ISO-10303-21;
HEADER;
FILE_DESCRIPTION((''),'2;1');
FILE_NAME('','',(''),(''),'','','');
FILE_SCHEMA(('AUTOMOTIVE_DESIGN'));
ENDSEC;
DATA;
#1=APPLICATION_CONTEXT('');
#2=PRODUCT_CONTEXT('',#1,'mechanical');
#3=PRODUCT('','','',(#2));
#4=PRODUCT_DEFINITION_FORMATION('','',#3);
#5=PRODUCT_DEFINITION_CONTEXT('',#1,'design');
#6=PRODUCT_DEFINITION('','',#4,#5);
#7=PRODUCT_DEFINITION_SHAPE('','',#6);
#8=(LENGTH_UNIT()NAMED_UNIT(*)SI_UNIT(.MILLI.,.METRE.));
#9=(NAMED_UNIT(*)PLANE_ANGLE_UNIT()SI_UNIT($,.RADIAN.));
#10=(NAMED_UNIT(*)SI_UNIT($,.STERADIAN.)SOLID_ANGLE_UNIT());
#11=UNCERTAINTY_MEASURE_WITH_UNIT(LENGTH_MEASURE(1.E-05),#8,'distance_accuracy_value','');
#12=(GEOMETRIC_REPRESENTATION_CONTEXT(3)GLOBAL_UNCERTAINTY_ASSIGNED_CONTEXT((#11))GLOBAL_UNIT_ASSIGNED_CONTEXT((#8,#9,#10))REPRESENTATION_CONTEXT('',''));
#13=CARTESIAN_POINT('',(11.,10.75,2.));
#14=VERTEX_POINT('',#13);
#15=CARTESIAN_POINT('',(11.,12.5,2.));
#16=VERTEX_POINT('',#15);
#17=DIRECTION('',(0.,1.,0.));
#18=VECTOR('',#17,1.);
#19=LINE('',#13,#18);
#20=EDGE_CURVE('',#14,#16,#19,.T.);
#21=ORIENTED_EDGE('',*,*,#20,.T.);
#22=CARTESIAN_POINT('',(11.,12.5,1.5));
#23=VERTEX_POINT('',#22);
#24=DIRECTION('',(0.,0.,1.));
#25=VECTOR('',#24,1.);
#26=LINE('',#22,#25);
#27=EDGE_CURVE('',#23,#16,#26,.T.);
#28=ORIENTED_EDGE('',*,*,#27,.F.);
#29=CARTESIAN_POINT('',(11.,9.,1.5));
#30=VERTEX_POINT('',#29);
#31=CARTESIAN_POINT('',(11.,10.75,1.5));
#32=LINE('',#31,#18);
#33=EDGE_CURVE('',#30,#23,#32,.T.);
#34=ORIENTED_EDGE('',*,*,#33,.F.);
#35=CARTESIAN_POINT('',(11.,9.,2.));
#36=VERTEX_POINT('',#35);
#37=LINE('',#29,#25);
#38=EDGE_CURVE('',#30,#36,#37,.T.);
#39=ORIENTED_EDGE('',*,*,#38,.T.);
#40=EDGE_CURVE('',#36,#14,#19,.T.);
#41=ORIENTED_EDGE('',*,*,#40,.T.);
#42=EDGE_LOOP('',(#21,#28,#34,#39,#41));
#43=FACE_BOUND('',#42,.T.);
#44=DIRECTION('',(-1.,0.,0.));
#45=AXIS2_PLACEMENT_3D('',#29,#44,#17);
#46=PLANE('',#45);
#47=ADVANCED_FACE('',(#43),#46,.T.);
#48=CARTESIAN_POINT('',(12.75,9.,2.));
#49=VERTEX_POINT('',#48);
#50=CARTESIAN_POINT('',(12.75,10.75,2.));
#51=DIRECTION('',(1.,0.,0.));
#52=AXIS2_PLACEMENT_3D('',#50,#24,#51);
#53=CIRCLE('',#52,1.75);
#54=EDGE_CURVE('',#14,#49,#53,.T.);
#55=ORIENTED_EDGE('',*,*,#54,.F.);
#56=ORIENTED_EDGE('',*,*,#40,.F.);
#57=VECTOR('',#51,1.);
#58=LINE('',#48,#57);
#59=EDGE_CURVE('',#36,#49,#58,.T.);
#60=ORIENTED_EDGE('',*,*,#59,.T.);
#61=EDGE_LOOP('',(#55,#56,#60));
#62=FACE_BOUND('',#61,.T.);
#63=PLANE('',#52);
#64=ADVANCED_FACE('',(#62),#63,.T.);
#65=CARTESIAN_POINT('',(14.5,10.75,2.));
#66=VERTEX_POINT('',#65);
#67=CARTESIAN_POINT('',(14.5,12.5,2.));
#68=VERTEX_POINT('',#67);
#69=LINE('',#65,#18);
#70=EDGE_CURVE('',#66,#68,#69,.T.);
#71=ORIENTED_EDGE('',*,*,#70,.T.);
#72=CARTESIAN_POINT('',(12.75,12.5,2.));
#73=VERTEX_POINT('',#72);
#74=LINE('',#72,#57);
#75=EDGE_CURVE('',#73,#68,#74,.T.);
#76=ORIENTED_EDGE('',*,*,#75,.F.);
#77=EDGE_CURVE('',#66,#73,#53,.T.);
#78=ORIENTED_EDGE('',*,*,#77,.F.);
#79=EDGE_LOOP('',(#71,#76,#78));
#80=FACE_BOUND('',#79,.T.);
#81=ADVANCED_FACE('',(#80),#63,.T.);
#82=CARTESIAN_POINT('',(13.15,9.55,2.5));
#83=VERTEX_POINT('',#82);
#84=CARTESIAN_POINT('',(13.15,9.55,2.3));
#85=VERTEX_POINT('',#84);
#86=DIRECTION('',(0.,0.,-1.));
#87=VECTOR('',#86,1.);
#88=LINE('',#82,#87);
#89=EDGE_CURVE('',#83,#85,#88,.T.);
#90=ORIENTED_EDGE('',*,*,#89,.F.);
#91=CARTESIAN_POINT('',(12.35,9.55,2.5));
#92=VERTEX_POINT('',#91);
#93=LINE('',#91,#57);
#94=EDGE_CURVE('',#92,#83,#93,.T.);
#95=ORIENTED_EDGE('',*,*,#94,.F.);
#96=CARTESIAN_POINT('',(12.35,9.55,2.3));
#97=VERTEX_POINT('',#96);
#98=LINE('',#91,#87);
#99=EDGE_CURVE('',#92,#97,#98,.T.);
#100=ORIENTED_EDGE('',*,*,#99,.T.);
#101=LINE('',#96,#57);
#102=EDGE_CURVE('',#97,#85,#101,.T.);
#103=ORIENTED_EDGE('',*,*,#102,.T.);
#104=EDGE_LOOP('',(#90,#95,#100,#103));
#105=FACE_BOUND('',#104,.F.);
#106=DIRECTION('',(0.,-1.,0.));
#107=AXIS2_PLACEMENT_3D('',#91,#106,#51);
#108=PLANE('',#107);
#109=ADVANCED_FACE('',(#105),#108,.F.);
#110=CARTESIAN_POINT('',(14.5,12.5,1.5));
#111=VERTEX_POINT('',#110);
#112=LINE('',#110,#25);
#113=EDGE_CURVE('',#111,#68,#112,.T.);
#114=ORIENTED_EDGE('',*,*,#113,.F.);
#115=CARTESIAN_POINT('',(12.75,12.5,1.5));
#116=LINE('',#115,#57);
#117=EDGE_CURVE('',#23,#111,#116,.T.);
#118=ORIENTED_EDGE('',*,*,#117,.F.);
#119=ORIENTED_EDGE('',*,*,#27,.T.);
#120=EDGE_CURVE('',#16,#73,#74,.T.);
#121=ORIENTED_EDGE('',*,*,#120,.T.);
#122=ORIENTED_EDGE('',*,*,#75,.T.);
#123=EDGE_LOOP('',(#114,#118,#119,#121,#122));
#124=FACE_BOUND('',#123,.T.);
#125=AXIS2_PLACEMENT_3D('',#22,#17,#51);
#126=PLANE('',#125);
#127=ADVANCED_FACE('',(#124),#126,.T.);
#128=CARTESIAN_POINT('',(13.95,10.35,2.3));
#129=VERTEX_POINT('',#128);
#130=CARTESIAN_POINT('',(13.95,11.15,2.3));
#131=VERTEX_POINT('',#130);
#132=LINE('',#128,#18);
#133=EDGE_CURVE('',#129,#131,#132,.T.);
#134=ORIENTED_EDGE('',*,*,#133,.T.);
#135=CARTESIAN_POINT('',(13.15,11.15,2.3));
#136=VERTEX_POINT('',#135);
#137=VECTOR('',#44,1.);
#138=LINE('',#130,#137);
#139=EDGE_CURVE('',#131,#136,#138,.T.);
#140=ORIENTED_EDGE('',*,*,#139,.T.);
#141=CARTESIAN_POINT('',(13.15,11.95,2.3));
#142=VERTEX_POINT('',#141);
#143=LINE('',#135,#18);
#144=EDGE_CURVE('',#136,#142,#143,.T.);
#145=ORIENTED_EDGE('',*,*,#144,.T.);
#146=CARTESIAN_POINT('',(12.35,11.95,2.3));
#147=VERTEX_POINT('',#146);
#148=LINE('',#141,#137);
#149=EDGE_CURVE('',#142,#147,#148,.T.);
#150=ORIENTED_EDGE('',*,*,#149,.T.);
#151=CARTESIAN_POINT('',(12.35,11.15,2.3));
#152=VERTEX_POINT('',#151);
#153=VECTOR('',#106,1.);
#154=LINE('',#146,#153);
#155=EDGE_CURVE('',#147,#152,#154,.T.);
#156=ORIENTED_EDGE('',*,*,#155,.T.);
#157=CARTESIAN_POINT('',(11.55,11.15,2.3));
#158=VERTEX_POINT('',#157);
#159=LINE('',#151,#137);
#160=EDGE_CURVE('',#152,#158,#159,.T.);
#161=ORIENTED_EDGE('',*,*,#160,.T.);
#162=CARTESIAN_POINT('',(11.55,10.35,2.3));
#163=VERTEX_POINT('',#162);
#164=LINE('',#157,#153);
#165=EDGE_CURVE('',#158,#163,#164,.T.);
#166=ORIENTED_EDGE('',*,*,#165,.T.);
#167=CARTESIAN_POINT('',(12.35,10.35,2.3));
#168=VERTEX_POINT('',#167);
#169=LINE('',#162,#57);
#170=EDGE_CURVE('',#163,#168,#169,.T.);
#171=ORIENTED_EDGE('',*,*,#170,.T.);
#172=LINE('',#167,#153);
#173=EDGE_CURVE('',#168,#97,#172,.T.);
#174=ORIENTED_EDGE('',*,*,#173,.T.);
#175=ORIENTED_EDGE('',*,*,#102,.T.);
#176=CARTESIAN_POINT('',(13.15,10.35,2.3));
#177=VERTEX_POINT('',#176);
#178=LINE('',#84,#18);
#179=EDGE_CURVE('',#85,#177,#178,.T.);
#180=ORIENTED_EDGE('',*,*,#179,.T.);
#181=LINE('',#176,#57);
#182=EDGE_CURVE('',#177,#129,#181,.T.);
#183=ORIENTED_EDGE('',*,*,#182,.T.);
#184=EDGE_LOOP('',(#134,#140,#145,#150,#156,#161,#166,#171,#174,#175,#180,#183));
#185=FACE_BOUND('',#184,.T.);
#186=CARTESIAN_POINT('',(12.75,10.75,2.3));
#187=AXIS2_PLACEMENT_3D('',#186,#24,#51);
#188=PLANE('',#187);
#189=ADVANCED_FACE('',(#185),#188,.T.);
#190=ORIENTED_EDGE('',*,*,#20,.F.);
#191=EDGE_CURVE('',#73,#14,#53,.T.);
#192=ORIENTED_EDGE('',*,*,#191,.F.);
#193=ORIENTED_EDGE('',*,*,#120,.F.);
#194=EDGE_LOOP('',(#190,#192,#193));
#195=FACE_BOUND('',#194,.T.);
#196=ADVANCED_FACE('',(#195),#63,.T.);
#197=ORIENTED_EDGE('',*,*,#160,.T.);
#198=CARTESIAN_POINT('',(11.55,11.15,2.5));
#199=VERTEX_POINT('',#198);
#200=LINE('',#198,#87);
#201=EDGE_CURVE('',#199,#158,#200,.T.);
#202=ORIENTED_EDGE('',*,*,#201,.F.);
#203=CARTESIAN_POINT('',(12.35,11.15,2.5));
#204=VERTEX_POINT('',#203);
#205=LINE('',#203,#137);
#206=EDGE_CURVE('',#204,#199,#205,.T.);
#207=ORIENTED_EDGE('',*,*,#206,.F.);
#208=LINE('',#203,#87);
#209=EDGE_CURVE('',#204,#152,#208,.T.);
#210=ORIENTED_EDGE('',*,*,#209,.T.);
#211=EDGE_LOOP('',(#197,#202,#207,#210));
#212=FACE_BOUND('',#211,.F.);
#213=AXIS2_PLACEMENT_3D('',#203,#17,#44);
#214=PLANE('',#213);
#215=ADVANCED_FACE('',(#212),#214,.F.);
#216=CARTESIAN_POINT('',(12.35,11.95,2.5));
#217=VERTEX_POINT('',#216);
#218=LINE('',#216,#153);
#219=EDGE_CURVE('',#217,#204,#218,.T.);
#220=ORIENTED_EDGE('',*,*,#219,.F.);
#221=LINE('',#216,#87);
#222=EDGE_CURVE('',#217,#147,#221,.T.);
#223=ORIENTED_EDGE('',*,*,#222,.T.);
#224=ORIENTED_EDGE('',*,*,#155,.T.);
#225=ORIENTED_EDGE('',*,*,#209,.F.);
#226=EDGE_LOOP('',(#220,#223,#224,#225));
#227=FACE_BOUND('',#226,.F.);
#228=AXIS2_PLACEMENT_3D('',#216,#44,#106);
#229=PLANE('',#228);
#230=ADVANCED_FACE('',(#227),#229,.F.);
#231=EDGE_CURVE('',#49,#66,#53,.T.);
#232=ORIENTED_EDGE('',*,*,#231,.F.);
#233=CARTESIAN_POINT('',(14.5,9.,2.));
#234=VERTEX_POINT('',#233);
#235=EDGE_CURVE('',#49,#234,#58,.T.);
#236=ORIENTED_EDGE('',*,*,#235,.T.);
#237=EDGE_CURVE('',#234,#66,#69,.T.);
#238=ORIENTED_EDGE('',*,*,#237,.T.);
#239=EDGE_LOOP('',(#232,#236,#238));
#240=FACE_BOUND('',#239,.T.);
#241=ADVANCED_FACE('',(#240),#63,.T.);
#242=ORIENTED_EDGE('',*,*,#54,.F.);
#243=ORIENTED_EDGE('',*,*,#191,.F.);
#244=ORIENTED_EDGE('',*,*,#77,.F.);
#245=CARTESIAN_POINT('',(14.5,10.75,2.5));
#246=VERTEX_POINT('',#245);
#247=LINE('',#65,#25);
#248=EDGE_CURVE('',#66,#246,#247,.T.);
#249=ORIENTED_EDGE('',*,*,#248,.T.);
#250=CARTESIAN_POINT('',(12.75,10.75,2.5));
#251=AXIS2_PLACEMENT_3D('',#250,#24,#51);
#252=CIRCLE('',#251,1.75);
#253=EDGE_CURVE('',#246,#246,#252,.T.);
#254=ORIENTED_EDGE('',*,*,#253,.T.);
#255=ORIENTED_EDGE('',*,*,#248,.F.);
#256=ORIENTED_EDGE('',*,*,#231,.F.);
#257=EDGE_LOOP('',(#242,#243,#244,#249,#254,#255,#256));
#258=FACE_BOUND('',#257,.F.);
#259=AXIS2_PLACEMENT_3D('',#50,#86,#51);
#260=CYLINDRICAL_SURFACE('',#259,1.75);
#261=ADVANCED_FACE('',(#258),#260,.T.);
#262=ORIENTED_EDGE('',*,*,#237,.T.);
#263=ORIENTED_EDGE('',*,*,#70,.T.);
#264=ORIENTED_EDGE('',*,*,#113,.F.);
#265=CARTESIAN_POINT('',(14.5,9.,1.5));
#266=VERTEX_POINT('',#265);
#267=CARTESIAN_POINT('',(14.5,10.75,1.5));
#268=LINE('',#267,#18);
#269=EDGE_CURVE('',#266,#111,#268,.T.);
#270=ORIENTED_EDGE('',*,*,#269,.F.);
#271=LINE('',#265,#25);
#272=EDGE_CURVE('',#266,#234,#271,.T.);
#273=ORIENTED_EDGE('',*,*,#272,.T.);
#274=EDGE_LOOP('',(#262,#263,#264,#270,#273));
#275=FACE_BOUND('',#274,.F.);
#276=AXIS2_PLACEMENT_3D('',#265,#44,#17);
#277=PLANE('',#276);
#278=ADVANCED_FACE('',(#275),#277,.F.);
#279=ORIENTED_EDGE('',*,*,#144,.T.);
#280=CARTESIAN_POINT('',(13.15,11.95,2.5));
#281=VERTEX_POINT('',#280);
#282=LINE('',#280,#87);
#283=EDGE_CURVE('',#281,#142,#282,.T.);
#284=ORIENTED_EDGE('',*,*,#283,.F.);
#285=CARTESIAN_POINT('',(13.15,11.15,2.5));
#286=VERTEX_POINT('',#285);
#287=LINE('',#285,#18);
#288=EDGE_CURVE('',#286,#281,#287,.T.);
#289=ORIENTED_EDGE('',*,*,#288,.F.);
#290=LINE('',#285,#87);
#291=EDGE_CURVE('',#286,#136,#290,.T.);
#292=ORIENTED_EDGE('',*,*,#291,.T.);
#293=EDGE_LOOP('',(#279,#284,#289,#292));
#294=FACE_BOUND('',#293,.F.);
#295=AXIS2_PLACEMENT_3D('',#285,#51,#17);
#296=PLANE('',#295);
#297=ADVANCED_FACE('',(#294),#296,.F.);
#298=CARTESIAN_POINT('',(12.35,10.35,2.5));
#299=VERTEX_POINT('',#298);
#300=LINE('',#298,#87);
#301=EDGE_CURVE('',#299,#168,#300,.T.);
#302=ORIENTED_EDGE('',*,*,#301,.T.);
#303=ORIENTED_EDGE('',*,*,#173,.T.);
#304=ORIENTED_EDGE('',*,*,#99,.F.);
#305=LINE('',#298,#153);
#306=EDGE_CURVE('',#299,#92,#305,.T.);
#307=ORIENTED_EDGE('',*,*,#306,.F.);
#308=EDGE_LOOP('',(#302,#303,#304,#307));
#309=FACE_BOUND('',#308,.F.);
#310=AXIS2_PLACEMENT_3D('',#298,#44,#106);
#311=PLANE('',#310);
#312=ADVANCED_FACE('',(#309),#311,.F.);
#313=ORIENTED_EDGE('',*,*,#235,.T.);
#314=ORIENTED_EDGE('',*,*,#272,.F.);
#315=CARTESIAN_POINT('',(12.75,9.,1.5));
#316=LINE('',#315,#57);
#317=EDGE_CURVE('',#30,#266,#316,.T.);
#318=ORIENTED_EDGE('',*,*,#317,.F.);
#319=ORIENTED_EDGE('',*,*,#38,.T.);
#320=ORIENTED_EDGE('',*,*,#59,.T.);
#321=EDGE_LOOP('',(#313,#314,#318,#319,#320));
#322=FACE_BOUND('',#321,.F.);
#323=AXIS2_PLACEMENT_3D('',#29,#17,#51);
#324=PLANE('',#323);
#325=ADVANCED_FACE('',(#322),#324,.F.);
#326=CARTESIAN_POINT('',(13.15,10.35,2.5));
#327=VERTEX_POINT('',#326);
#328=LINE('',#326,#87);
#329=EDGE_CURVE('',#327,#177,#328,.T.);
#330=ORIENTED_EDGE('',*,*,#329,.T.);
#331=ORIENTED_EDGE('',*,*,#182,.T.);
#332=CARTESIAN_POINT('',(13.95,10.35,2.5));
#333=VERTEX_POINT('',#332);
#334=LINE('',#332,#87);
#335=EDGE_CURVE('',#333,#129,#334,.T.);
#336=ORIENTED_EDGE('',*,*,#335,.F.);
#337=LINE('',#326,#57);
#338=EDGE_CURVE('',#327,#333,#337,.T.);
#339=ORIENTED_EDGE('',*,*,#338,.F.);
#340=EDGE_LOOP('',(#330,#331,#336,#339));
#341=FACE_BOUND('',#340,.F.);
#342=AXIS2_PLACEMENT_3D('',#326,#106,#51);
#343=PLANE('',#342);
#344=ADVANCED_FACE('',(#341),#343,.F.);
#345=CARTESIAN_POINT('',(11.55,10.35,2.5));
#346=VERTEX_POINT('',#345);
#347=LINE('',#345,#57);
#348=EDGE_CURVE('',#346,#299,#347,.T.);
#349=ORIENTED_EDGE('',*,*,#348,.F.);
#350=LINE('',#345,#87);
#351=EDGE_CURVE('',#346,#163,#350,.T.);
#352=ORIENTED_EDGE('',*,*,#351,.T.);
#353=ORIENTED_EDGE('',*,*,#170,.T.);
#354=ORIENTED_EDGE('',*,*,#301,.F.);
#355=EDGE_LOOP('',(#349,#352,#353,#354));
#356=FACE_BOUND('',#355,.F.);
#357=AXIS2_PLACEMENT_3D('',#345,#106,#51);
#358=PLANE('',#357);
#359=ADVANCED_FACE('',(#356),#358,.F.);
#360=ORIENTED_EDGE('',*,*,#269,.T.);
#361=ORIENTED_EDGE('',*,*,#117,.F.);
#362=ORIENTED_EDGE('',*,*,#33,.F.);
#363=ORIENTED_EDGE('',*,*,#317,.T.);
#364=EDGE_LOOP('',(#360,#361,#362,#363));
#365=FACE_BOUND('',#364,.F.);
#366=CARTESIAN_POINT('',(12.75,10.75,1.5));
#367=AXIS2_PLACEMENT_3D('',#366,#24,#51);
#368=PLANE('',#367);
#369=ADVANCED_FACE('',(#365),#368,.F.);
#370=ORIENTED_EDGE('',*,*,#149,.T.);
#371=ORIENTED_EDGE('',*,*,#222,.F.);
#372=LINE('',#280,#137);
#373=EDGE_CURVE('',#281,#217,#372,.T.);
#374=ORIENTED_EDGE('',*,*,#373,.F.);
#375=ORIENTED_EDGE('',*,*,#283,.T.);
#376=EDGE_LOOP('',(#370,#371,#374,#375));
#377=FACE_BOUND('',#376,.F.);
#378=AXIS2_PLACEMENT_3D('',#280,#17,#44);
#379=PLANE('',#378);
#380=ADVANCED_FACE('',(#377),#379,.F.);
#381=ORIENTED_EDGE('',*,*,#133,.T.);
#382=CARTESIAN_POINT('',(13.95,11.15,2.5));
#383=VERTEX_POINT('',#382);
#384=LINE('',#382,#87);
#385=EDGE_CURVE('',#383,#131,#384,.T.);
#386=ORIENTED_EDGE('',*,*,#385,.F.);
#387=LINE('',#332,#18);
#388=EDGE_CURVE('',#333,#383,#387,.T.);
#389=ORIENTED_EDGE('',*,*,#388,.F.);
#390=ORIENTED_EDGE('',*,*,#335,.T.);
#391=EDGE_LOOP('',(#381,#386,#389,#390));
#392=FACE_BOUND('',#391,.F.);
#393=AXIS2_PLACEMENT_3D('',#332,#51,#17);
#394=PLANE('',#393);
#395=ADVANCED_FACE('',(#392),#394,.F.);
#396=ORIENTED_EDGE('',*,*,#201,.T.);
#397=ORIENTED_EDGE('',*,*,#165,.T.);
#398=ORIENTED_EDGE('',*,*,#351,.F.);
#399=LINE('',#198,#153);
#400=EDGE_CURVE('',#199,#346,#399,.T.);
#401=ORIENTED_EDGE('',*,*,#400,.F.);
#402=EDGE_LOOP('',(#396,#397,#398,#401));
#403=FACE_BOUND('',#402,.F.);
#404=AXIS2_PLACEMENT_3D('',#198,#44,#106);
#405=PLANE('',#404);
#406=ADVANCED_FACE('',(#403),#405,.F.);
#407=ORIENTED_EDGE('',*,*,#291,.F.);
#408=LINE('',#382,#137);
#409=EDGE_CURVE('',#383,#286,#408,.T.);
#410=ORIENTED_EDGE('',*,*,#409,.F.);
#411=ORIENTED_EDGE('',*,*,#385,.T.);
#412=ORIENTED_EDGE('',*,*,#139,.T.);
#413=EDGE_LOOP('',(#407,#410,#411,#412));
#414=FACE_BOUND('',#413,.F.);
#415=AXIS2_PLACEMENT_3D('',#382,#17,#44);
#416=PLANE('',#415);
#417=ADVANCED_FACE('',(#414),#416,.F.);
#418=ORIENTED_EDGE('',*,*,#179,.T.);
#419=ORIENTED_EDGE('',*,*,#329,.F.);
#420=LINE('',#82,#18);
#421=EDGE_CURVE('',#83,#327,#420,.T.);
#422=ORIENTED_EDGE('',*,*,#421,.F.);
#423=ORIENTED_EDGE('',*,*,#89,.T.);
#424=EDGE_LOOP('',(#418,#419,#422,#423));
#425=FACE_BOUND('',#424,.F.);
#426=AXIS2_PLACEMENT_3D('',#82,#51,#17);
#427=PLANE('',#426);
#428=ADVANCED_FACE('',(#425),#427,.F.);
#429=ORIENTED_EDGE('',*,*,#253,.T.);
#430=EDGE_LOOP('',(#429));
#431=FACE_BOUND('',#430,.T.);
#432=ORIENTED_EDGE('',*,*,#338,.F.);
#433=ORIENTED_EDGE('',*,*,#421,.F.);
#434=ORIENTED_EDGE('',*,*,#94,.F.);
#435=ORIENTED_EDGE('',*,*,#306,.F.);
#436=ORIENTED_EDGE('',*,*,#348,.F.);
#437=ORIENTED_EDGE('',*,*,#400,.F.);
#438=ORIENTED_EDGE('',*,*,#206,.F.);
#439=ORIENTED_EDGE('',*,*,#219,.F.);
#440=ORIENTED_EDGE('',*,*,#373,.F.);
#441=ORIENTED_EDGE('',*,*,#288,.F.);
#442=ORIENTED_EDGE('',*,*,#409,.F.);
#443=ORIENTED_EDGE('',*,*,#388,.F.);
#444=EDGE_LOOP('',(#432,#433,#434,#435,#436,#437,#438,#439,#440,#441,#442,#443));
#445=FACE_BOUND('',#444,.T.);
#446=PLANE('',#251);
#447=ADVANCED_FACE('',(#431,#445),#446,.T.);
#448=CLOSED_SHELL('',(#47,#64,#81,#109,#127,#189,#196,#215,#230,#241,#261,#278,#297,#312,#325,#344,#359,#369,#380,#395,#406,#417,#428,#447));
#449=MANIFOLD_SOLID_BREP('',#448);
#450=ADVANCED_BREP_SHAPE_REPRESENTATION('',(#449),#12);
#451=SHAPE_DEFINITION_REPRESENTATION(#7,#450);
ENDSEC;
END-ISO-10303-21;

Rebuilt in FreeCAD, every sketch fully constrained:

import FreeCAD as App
import Part
import Sketcher

V = App.Vector
Q = App.Units.Quantity

doc = App.newDocument("Part")
params = doc.addObject("Spreadsheet::Sheet", "Params")
for row, (alias, value) in enumerate([
    ("sketch1_width", "3.5 mm"),
    ("pad1_length", "0.5 mm"),
    ("sketch2_diameter", "3.5 mm"),
    ("pad2_length", "0.5 mm"),
    ("sketch3_width", "0.8 mm"),
    ("pocket1_length", "0.2 mm"),
], start=1):
    params.set(f"A{row}", alias)
    params.set(f"B{row}", "=" + value)
    params.setAlias(f"B{row}", alias)

body = doc.addObject("PartDesign::Body", "Body")

# Sketch on XY plane
sketch1 = body.newObject("Sketcher::SketchObject", "Sketch")
sketch1.AttachmentSupport = (doc.getObject("XY_Plane"), [""])
sketch1.MapMode = "FlatFace"
sketch1.AttachmentOffset = App.Placement(V(0, 0, 1.5), App.Rotation())
sketch1.addGeometry([
    Part.LineSegment(V(11, 12.5, 0), V(11, 9, 0)),
    Part.LineSegment(V(11, 9, 0), V(14.5, 9, 0)),
    Part.LineSegment(V(14.5, 9, 0), V(14.5, 12.5, 0)),
    Part.LineSegment(V(14.5, 12.5, 0), V(11, 12.5, 0)),
], False)
sketch1.addConstraint([
    Sketcher.Constraint("Coincident", 0, 2, 1, 1),
    Sketcher.Constraint("Coincident", 1, 2, 2, 1),
    Sketcher.Constraint("Coincident", 2, 2, 3, 1),
    Sketcher.Constraint("Coincident", 3, 2, 0, 1),
    Sketcher.Constraint("Vertical", 0),
    Sketcher.Constraint("Horizontal", 1),
    Sketcher.Constraint("Vertical", 2),
    Sketcher.Constraint("Horizontal", 3),
    Sketcher.Constraint("Equal", 3, 0),
    Sketcher.Constraint("DistanceX", 1, 1, 1, 2, Q("3.5 mm")),
    Sketcher.Constraint("DistanceX", -1, 1, 0, 2, Q("11 mm")),
    Sketcher.Constraint("DistanceY", -1, 1, 0, 2, Q("9 mm")),
])
sketch1.setExpression("Constraints[9]", "Params.sketch1_width")
pad1 = body.newObject("PartDesign::Pad", "Pad")
pad1.Profile = sketch1
pad1.setExpression("Length", "Params.pad1_length")

# Sketch on XY plane
sketch2 = body.newObject("Sketcher::SketchObject", "Sketch001")
sketch2.AttachmentSupport = (doc.getObject("XY_Plane"), [""])
sketch2.MapMode = "FlatFace"
sketch2.AttachmentOffset = App.Placement(V(0, 0, 2), App.Rotation())
sketch2.addGeometry(Part.Circle(V(12.8, 10.8, 0), V(0, 0, 1), 1.8), False)
sketch2.addConstraint([
    Sketcher.Constraint("Diameter", 0, Q("3.5 mm")),
    Sketcher.Constraint("DistanceX", -1, 1, 0, 3, Q("12.75 mm")),
    Sketcher.Constraint("DistanceY", -1, 1, 0, 3, Q("10.75 mm")),
])
sketch2.setExpression("Constraints[0]", "Params.sketch2_diameter")
pad2 = body.newObject("PartDesign::Pad", "Pad001")
pad2.Profile = sketch2
pad2.setExpression("Length", "Params.pad2_length")

# Sketch on XY plane
sketch3 = body.newObject("Sketcher::SketchObject", "Sketch002")
sketch3.AttachmentSupport = (doc.getObject("XY_Plane"), [""])
sketch3.MapMode = "FlatFace"
sketch3.AttachmentOffset = App.Placement(V(0, 0, 2.5), App.Rotation())
sketch3.addGeometry([
    Part.LineSegment(V(13.2, 11.9, 0), V(12.3, 11.9, 0)),  # 0
    Part.LineSegment(V(12.3, 11.9, 0), V(12.3, 11.2, 0)),  # 1
    Part.LineSegment(V(12.3, 11.2, 0), V(11.6, 11.2, 0)),  # 2
    Part.LineSegment(V(11.6, 11.2, 0), V(11.6, 10.3, 0)),  # 3
    Part.LineSegment(V(11.6, 10.3, 0), V(12.3, 10.3, 0)),  # 4
    Part.LineSegment(V(12.3, 10.3, 0), V(12.3, 9.6, 0)),  # 5
    Part.LineSegment(V(12.3, 9.6, 0), V(13.2, 9.6, 0)),  # 6
    Part.LineSegment(V(13.2, 9.6, 0), V(13.2, 10.3, 0)),  # 7
    Part.LineSegment(V(13.2, 10.3, 0), V(13.9, 10.3, 0)),  # 8
    Part.LineSegment(V(13.9, 10.3, 0), V(13.9, 11.2, 0)),  # 9
    Part.LineSegment(V(13.9, 11.2, 0), V(13.2, 11.2, 0)),  # 10
    Part.LineSegment(V(13.2, 11.2, 0), V(13.2, 11.9, 0)),  # 11
], False)
sketch3.addConstraint([
    Sketcher.Constraint("Coincident", 0, 2, 1, 1),
    Sketcher.Constraint("Coincident", 1, 2, 2, 1),
    Sketcher.Constraint("Coincident", 2, 2, 3, 1),
    Sketcher.Constraint("Coincident", 3, 2, 4, 1),
    Sketcher.Constraint("Coincident", 4, 2, 5, 1),
    Sketcher.Constraint("Coincident", 5, 2, 6, 1),
    Sketcher.Constraint("Coincident", 6, 2, 7, 1),
    Sketcher.Constraint("Coincident", 7, 2, 8, 1),
    Sketcher.Constraint("Coincident", 8, 2, 9, 1),
    Sketcher.Constraint("Coincident", 9, 2, 10, 1),
    Sketcher.Constraint("Coincident", 10, 2, 11, 1),
    Sketcher.Constraint("Coincident", 11, 2, 0, 1),
    Sketcher.Constraint("Horizontal", 0),
    Sketcher.Constraint("Vertical", 1),
    Sketcher.Constraint("Horizontal", 2),
    Sketcher.Constraint("Vertical", 3),
    Sketcher.Constraint("Horizontal", 4),
    Sketcher.Constraint("Vertical", 5),
    Sketcher.Constraint("Horizontal", 6),
    Sketcher.Constraint("Vertical", 7),
    Sketcher.Constraint("Horizontal", 8),
    Sketcher.Constraint("Vertical", 9),
    Sketcher.Constraint("Horizontal", 10),
    Sketcher.Constraint("Vertical", 11),
    Sketcher.Constraint("Horizontal", 4, 2, 7, 2),
    Sketcher.Constraint("Horizontal", 2, 2, 9, 2),
    Sketcher.Constraint("Vertical", 1, 2, 4, 2),
    Sketcher.Constraint("Vertical", 7, 2, 10, 2),
    Sketcher.Constraint("Equal", 0, 2),
    Sketcher.Constraint("Equal", 6, 8),
    Sketcher.Constraint("Equal", 10, 1),
    Sketcher.Constraint("Equal", 1, 3),
    Sketcher.Constraint("Equal", 3, 5),
    Sketcher.Constraint("DistanceX", 0, 2, 0, 1, Q("0.8 mm")),
    Sketcher.Constraint("DistanceX", -1, 1, 0, 2, Q("12.35 mm")),
    Sketcher.Constraint("DistanceY", -1, 1, 0, 2, Q("11.95 mm")),
])
sketch3.setExpression("Constraints[33]", "Params.sketch3_width")
pocket1 = body.newObject("PartDesign::Pocket", "Pocket")
pocket1.Profile = sketch3
pocket1.setExpression("Length", "Params.pocket1_length")

doc.recompute()
